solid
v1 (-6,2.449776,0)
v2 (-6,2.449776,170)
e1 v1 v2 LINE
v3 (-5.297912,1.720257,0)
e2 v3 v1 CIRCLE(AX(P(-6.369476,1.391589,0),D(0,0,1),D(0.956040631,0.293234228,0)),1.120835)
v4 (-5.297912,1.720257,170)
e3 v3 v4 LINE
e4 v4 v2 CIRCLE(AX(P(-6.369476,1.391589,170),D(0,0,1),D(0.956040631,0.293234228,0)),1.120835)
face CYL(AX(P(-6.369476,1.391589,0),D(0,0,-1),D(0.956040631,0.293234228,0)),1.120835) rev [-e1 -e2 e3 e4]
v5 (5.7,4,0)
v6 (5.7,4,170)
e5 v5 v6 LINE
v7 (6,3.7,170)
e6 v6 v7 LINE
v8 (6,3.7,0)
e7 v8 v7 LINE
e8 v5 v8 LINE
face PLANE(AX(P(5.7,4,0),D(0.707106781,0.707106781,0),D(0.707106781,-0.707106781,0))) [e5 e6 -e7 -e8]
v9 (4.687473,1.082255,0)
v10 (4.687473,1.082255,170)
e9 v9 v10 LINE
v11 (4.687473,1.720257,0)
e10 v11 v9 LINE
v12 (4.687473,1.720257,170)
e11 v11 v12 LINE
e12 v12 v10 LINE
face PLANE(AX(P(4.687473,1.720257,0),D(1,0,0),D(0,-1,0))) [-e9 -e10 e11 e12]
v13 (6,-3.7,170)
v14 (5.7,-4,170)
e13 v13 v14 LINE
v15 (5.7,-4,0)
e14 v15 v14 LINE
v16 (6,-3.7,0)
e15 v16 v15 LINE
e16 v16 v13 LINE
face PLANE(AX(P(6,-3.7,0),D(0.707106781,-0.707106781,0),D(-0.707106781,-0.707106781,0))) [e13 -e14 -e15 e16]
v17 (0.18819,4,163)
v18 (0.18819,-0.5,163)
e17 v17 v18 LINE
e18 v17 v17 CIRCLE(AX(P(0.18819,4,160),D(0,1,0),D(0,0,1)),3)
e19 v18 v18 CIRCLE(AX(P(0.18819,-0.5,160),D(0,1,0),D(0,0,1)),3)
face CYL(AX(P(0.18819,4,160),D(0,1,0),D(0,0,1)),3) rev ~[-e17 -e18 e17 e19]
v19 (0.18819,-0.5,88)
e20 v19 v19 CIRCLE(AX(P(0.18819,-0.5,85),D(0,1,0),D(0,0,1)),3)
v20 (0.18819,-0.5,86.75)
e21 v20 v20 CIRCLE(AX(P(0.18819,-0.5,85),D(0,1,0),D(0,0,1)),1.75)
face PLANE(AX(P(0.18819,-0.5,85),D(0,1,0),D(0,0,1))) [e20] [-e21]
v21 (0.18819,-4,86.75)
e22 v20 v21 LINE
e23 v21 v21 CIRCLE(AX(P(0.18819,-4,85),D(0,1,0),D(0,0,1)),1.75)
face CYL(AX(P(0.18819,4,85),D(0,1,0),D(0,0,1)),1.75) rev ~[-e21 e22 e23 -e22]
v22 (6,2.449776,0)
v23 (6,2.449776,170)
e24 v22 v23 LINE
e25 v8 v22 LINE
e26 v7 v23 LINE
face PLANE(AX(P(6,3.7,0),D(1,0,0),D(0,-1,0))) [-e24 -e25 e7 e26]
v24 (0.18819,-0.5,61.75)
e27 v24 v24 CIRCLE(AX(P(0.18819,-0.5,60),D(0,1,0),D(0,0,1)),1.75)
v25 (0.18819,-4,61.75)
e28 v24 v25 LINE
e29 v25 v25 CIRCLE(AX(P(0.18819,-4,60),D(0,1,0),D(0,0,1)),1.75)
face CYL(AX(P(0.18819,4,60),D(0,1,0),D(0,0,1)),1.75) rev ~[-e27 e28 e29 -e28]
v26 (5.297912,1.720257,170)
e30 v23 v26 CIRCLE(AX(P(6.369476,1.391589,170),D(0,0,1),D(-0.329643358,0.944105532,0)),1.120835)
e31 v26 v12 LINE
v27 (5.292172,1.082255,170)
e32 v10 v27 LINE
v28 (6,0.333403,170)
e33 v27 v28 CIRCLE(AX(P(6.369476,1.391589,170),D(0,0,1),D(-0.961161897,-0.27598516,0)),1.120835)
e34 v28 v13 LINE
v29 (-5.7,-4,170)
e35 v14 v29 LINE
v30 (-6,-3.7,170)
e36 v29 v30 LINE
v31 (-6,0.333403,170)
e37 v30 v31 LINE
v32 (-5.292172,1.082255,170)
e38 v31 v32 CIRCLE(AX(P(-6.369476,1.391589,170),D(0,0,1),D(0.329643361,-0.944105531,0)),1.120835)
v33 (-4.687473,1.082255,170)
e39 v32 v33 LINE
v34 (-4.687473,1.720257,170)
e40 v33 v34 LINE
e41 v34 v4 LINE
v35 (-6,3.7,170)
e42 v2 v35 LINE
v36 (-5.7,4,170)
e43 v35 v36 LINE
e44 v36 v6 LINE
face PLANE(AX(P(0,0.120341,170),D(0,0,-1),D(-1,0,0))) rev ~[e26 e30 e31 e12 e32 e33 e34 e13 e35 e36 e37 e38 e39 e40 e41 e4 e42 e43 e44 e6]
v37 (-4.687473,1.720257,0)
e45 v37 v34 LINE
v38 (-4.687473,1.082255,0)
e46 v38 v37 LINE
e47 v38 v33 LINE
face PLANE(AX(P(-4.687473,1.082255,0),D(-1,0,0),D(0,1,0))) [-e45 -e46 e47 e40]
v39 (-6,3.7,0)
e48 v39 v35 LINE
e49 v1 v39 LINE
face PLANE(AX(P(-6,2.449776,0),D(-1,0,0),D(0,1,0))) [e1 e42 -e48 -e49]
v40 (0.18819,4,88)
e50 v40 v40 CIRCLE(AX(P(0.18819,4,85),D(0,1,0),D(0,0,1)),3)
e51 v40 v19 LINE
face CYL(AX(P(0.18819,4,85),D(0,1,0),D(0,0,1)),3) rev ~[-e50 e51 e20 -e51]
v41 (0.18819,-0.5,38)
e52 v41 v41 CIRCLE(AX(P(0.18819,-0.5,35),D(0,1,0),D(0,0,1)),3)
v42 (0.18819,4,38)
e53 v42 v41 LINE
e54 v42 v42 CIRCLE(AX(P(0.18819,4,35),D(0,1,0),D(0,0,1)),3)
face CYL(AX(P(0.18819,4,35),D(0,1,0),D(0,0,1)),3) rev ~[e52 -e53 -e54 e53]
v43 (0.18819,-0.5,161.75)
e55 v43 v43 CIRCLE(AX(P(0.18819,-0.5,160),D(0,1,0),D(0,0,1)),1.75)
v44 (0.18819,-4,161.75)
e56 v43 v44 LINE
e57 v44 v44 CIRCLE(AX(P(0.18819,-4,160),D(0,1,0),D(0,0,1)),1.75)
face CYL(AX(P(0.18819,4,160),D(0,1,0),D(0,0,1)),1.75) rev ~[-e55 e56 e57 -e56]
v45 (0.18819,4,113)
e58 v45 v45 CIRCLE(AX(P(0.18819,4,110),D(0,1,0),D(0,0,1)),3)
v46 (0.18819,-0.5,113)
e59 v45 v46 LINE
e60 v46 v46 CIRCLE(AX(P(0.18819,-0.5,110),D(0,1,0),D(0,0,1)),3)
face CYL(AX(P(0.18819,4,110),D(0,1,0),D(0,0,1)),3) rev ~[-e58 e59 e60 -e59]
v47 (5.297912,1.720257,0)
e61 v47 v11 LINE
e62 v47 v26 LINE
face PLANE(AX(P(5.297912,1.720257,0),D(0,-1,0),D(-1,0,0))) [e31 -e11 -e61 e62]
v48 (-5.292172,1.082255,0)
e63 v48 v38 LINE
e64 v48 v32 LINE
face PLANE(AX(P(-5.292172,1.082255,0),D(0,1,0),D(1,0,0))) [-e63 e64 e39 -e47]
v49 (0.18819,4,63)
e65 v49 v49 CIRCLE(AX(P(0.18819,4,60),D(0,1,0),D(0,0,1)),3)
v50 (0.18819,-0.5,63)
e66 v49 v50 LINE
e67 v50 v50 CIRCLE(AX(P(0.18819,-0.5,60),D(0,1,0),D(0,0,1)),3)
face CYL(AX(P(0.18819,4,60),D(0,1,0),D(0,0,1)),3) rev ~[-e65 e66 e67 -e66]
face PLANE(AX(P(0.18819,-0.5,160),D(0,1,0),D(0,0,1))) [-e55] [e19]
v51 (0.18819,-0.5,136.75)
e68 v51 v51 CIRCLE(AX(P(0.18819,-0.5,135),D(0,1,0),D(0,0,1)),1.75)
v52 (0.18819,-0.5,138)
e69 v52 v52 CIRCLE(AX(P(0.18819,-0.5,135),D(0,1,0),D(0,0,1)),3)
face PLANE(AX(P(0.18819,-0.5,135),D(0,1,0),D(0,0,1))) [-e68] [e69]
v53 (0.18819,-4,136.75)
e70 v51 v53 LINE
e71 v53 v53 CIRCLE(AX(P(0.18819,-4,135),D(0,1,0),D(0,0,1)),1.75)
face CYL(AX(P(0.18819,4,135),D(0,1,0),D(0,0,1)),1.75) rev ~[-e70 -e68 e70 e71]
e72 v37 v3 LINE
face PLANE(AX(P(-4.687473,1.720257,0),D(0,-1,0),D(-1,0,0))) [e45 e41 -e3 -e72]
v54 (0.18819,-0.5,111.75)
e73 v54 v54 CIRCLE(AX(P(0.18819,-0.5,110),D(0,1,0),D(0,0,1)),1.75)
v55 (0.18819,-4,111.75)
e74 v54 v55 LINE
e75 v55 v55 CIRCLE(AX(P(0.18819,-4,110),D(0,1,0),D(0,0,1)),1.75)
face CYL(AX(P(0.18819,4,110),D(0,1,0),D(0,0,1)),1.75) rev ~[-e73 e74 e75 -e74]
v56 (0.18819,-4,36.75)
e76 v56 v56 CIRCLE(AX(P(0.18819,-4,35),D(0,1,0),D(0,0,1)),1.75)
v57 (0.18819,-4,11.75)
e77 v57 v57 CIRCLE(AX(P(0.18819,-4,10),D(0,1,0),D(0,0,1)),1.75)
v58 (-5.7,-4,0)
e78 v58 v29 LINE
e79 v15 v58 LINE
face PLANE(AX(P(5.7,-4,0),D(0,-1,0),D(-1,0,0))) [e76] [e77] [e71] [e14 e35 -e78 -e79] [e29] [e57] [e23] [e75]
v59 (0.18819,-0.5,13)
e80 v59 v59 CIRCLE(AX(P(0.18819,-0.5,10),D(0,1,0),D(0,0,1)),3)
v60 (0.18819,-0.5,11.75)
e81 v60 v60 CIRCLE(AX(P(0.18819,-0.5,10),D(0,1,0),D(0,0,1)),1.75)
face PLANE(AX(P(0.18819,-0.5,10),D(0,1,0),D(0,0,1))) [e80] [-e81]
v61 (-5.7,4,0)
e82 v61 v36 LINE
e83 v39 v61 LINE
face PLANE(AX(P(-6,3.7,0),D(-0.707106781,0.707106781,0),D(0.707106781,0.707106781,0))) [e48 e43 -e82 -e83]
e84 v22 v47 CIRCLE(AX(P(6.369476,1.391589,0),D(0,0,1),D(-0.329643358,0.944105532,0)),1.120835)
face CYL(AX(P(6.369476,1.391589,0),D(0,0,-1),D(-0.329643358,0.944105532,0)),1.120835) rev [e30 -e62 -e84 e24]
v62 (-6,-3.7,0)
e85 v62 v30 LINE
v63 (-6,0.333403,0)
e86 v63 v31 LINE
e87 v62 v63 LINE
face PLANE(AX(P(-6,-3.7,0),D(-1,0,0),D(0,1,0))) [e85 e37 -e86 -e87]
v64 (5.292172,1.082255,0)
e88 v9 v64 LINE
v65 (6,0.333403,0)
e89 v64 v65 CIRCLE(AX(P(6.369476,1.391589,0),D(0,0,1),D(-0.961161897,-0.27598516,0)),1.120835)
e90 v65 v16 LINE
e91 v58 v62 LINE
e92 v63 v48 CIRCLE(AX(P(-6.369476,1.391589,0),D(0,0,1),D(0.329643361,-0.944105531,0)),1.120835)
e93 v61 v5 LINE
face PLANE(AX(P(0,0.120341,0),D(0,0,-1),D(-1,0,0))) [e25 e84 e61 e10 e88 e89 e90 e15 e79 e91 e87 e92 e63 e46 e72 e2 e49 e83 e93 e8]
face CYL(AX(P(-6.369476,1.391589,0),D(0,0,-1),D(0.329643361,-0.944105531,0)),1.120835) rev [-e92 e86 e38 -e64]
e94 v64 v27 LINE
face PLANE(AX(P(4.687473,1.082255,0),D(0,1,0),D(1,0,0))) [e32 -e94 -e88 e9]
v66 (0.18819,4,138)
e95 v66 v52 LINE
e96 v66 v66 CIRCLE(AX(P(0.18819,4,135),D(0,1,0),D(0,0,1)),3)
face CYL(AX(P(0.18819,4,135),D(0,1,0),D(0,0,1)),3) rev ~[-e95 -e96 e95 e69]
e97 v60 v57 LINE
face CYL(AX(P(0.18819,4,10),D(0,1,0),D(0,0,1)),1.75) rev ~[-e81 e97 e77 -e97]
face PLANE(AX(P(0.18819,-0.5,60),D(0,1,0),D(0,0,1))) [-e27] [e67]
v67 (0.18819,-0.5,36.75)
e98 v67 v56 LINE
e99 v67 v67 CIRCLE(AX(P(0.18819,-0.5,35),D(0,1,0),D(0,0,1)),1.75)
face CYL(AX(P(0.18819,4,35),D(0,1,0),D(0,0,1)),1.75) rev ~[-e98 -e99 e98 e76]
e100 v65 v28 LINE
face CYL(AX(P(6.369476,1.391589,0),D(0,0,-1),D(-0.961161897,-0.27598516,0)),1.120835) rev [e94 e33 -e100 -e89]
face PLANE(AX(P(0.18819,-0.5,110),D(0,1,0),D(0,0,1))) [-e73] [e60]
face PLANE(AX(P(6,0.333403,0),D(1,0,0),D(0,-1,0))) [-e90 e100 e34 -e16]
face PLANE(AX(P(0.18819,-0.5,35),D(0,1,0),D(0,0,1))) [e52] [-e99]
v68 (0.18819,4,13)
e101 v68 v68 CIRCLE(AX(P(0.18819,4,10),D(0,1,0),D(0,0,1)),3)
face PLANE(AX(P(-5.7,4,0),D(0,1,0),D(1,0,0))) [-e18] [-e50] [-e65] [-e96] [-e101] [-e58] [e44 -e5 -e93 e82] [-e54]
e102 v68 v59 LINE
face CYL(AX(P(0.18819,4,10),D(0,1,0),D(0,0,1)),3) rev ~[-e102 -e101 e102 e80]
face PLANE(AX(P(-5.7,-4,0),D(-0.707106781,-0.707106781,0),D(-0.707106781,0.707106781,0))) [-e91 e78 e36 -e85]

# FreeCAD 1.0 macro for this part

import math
import FreeCAD as App
import Part
import Sketcher
Q = App.Units.Quantity

doc = App.newDocument("Part")
body = doc.addObject("PartDesign::Body", "Body")

sketch1 = body.newObject("Sketcher::SketchObject", "Sketch")
sketch1.AttachmentSupport = (doc.getObject("XY_Plane"), [""])
sketch1.MapMode = "FlatFace"
sketch1.addGeometry(Part.LineSegment(App.Vector(-5.7, 4, 0), App.Vector(-6, 3.7, 0)), False)
sketch1.addGeometry(Part.LineSegment(App.Vector(-6, 3.7, 0), App.Vector(-6, 2.45, 0)), False)
sketch1.addGeometry(Part.ArcOfCircle(Part.Circle(App.Vector(-6.37, 1.39, 0), App.Vector(0, 0, 1), 1.12), math.radians(17), math.radians(71)), False)
sketch1.addGeometry(Part.LineSegment(App.Vector(-5.3, 1.72, 0), App.Vector(-4.69, 1.72, 0)), False)
sketch1.addGeometry(Part.LineSegment(App.Vector(-4.69, 1.72, 0), App.Vector(-4.69, 1.08, 0)), False)
sketch1.addGeometry(Part.LineSegment(App.Vector(-4.69, 1.08, 0), App.Vector(-5.29, 1.08, 0)), False)
sketch1.addGeometry(Part.ArcOfCircle(Part.Circle(App.Vector(-6.37, 1.39, 0), App.Vector(0, 0, 1), 1.12), math.radians(-71), math.radians(-16)), False)
sketch1.addGeometry(Part.LineSegment(App.Vector(-6, 0.33, 0), App.Vector(-6, -3.7, 0)), False)
sketch1.addGeometry(Part.LineSegment(App.Vector(-6, -3.7, 0), App.Vector(-5.7, -4, 0)), False)
sketch1.addGeometry(Part.LineSegment(App.Vector(-5.7, -4, 0), App.Vector(5.7, -4, 0)), False)
sketch1.addGeometry(Part.LineSegment(App.Vector(5.7, -4, 0), App.Vector(6, -3.7, 0)), False)
sketch1.addGeometry(Part.LineSegment(App.Vector(6, -3.7, 0), App.Vector(6, 0.33, 0)), False)
sketch1.addGeometry(Part.ArcOfCircle(Part.Circle(App.Vector(6.37, 1.39, 0), App.Vector(0, 0, 1), 1.12), math.radians(-164), math.radians(-109)), False)
sketch1.addGeometry(Part.LineSegment(App.Vector(5.29, 1.08, 0), App.Vector(4.69, 1.08, 0)), False)
sketch1.addGeometry(Part.LineSegment(App.Vector(4.69, 1.08, 0), App.Vector(4.69, 1.72, 0)), False)
sketch1.addGeometry(Part.LineSegment(App.Vector(4.69, 1.72, 0), App.Vector(5.3, 1.72, 0)), False)
sketch1.addGeometry(Part.ArcOfCircle(Part.Circle(App.Vector(6.37, 1.39, 0), App.Vector(0, 0, 1), 1.12), math.radians(109), math.radians(163)), False)
sketch1.addGeometry(Part.LineSegment(App.Vector(6, 2.45, 0), App.Vector(6, 3.7, 0)), False)
sketch1.addGeometry(Part.LineSegment(App.Vector(6, 3.7, 0), App.Vector(5.7, 4, 0)), False)
sketch1.addGeometry(Part.LineSegment(App.Vector(5.7, 4, 0), App.Vector(-5.7, 4, 0)), False)
sketch1.addConstraint(Sketcher.Constraint("Coincident", 0, 2, 1, 1))
sketch1.addConstraint(Sketcher.Constraint("Coincident", 1, 2, 2, 2))
sketch1.addConstraint(Sketcher.Constraint("Coincident", 2, 1, 3, 1))
sketch1.addConstraint(Sketcher.Constraint("Coincident", 3, 2, 4, 1))
sketch1.addConstraint(Sketcher.Constraint("Coincident", 4, 2, 5, 1))
sketch1.addConstraint(Sketcher.Constraint("Coincident", 5, 2, 6, 2))
sketch1.addConstraint(Sketcher.Constraint("Coincident", 6, 1, 7, 1))
sketch1.addConstraint(Sketcher.Constraint("Coincident", 7, 2, 8, 1))
sketch1.addConstraint(Sketcher.Constraint("Coincident", 8, 2, 9, 1))
sketch1.addConstraint(Sketcher.Constraint("Coincident", 9, 2, 10, 1))
sketch1.addConstraint(Sketcher.Constraint("Coincident", 10, 2, 11, 1))
sketch1.addConstraint(Sketcher.Constraint("Coincident", 11, 2, 12, 2))
sketch1.addConstraint(Sketcher.Constraint("Coincident", 12, 1, 13, 1))
sketch1.addConstraint(Sketcher.Constraint("Coincident", 13, 2, 14, 1))
sketch1.addConstraint(Sketcher.Constraint("Coincident", 14, 2, 15, 1))
sketch1.addConstraint(Sketcher.Constraint("Coincident", 15, 2, 16, 2))
sketch1.addConstraint(Sketcher.Constraint("Coincident", 16, 1, 17, 1))
sketch1.addConstraint(Sketcher.Constraint("Coincident", 17, 2, 18, 1))
sketch1.addConstraint(Sketcher.Constraint("Coincident", 18, 2, 19, 1))
sketch1.addConstraint(Sketcher.Constraint("Coincident", 19, 2, 0, 1))
sketch1.addConstraint(Sketcher.Constraint("Vertical", 1))
sketch1.addConstraint(Sketcher.Constraint("Horizontal", 3))
sketch1.addConstraint(Sketcher.Constraint("Vertical", 4))
sketch1.addConstraint(Sketcher.Constraint("Horizontal", 5))
sketch1.addConstraint(Sketcher.Constraint("Vertical", 7))
sketch1.addConstraint(Sketcher.Constraint("Horizontal", 9))
sketch1.addConstraint(Sketcher.Constraint("Vertical", 11))
sketch1.addConstraint(Sketcher.Constraint("Horizontal", 13))
sketch1.addConstraint(Sketcher.Constraint("Vertical", 14))
sketch1.addConstraint(Sketcher.Constraint("Horizontal", 15))
sketch1.addConstraint(Sketcher.Constraint("Vertical", 17))
sketch1.addConstraint(Sketcher.Constraint("Horizontal", 19))
sketch1.addConstraint(Sketcher.Constraint("Coincident", 6, 3, 2, 3))
sketch1.addConstraint(Sketcher.Constraint("Coincident", 16, 3, 12, 3))
sketch1.addConstraint(Sketcher.Constraint("Equal", 2, 6))
sketch1.addConstraint(Sketcher.Constraint("Equal", 6, 12))
sketch1.addConstraint(Sketcher.Constraint("Equal", 12, 16))
sketch1.addConstraint(Sketcher.Constraint("Symmetric", 0, 2, 10, 2, -1, 1))
sketch1.addConstraint(Sketcher.Constraint("Symmetric", 7, 2, 17, 2, -1, 1))
sketch1.addConstraint(Sketcher.Constraint("Symmetric", 8, 2, 18, 2, -1, 1))
sketch1.addConstraint(Sketcher.Constraint("Symmetric", 2, 3, 12, 3, -2))
sketch1.addConstraint(Sketcher.Constraint("Symmetric", 7, 2, 10, 2, -2))
sketch1.addConstraint(Sketcher.Constraint("Symmetric", 4, 2, 13, 2, -2))
sketch1.addConstraint(Sketcher.Constraint("Perpendicular", 0, 8))
sketch1.addConstraint(Sketcher.Constraint("Perpendicular", 8, 10))
sketch1.addConstraint(Sketcher.Constraint("Horizontal", 3, 2, 14, 2))
sketch1.addConstraint(Sketcher.Constraint("Vertical", 9, 2, 18, 2))
sketch1.addConstraint(Sketcher.Constraint("DistanceX", 9, 1, 9, 2, Q("11.4 mm")))
sketch1.addConstraint(Sketcher.Constraint("DistanceX", 0, 2, -1, 1, Q("6 mm")))
sketch1.addConstraint(Sketcher.Constraint("DistanceY", 8, 2, -1, 1, Q("4 mm")))
sketch1.addConstraint(Sketcher.Constraint("DistanceY", 4, 2, 4, 1, Q("0.638001 mm")))
sketch1.addConstraint(Sketcher.Constraint("DistanceX", 5, 2, 5, 1, Q("0.604699 mm")))
sketch1.addConstraint(Sketcher.Constraint("Radius", 2, Q("1.120835 mm")))
sketch1.addConstraint(Sketcher.Constraint("DistanceX", 3, 1, 3, 2, Q("0.610439 mm")))
sketch1.addConstraint(Sketcher.Constraint("DistanceY", 1, 2, 1, 1, Q("1.250224 mm")))
sketch1.addConstraint(Sketcher.Constraint("DistanceY", 7, 2, 7, 1, Q("4.033403 mm")))
pad1 = body.newObject("PartDesign::Pad", "Pad")
pad1.Profile = sketch1
pad1.Length = 170

sketch2 = body.newObject("Sketcher::SketchObject", "Sketch001")
sketch2.AttachmentSupport = (doc.getObject("XZ_Plane"), [""])
sketch2.MapMode = "FlatFace"
sketch2.AttachmentOffset = App.Placement(App.Vector(0, 0, -4), App.Rotation())
sketch2.addGeometry(Part.Circle(App.Vector(0.2, 10, 0), App.Vector(0, 0, 1), 3), False)
sketch2.addGeometry(Part.Circle(App.Vector(0.2, 10, 0), App.Vector(0, 0, 1), 1.8), False)
sketch2.addConstraint(Sketcher.Constraint("Coincident", 1, 3, 0, 3))
sketch2.addConstraint(Sketcher.Constraint("Diameter", 0, Q("6 mm")))
sketch2.addConstraint(Sketcher.Constraint("Diameter", 1, Q("3.5 mm")))
sketch2.addConstraint(Sketcher.Constraint("DistanceY", -1, 1, 0, 3, Q("10 mm")))
sketch2.addConstraint(Sketcher.Constraint("DistanceX", -1, 1, 0, 3, Q("0.18819 mm")))
pocket1 = body.newObject("PartDesign::Pocket", "Pocket")
pocket1.Profile = sketch2
pocket1.Length = 4.5
pocket1.Reversed = True

sketch3 = body.newObject("Sketcher::SketchObject", "Sketch002")
sketch3.AttachmentSupport = (doc.getObject("XZ_Plane"), [""])
sketch3.MapMode = "FlatFace"
sketch3.AttachmentOffset = App.Placement(App.Vector(0, 0, -4), App.Rotation())
sketch3.addGeometry(Part.Circle(App.Vector(0.2, 10, 0), App.Vector(0, 0, 1), 1.8), False)
sketch3.addConstraint(Sketcher.Constraint("Diameter", 0, Q("3.5 mm")))
sketch3.addConstraint(Sketcher.Constraint("DistanceY", -1, 1, 0, 3, Q("10 mm")))
sketch3.addConstraint(Sketcher.Constraint("DistanceX", -1, 1, 0, 3, Q("0.18819 mm")))
pocket2 = body.newObject("PartDesign::Pocket", "Pocket001")
pocket2.Profile = sketch3
pocket2.Type = "ThroughAll"
pocket2.Reversed = True
doc.recompute()

linearpattern = body.newObject("PartDesign::LinearPattern", "LinearPattern")
linearpattern.Originals = [pocket1, pocket2]
linearpattern.Direction = (doc.getObject("Z_Axis"), [""])
linearpattern.Mode = "offset"
linearpattern.Offset = 25
linearpattern.Occurrences = 12
body.Tip = linearpattern

doc.recompute()
